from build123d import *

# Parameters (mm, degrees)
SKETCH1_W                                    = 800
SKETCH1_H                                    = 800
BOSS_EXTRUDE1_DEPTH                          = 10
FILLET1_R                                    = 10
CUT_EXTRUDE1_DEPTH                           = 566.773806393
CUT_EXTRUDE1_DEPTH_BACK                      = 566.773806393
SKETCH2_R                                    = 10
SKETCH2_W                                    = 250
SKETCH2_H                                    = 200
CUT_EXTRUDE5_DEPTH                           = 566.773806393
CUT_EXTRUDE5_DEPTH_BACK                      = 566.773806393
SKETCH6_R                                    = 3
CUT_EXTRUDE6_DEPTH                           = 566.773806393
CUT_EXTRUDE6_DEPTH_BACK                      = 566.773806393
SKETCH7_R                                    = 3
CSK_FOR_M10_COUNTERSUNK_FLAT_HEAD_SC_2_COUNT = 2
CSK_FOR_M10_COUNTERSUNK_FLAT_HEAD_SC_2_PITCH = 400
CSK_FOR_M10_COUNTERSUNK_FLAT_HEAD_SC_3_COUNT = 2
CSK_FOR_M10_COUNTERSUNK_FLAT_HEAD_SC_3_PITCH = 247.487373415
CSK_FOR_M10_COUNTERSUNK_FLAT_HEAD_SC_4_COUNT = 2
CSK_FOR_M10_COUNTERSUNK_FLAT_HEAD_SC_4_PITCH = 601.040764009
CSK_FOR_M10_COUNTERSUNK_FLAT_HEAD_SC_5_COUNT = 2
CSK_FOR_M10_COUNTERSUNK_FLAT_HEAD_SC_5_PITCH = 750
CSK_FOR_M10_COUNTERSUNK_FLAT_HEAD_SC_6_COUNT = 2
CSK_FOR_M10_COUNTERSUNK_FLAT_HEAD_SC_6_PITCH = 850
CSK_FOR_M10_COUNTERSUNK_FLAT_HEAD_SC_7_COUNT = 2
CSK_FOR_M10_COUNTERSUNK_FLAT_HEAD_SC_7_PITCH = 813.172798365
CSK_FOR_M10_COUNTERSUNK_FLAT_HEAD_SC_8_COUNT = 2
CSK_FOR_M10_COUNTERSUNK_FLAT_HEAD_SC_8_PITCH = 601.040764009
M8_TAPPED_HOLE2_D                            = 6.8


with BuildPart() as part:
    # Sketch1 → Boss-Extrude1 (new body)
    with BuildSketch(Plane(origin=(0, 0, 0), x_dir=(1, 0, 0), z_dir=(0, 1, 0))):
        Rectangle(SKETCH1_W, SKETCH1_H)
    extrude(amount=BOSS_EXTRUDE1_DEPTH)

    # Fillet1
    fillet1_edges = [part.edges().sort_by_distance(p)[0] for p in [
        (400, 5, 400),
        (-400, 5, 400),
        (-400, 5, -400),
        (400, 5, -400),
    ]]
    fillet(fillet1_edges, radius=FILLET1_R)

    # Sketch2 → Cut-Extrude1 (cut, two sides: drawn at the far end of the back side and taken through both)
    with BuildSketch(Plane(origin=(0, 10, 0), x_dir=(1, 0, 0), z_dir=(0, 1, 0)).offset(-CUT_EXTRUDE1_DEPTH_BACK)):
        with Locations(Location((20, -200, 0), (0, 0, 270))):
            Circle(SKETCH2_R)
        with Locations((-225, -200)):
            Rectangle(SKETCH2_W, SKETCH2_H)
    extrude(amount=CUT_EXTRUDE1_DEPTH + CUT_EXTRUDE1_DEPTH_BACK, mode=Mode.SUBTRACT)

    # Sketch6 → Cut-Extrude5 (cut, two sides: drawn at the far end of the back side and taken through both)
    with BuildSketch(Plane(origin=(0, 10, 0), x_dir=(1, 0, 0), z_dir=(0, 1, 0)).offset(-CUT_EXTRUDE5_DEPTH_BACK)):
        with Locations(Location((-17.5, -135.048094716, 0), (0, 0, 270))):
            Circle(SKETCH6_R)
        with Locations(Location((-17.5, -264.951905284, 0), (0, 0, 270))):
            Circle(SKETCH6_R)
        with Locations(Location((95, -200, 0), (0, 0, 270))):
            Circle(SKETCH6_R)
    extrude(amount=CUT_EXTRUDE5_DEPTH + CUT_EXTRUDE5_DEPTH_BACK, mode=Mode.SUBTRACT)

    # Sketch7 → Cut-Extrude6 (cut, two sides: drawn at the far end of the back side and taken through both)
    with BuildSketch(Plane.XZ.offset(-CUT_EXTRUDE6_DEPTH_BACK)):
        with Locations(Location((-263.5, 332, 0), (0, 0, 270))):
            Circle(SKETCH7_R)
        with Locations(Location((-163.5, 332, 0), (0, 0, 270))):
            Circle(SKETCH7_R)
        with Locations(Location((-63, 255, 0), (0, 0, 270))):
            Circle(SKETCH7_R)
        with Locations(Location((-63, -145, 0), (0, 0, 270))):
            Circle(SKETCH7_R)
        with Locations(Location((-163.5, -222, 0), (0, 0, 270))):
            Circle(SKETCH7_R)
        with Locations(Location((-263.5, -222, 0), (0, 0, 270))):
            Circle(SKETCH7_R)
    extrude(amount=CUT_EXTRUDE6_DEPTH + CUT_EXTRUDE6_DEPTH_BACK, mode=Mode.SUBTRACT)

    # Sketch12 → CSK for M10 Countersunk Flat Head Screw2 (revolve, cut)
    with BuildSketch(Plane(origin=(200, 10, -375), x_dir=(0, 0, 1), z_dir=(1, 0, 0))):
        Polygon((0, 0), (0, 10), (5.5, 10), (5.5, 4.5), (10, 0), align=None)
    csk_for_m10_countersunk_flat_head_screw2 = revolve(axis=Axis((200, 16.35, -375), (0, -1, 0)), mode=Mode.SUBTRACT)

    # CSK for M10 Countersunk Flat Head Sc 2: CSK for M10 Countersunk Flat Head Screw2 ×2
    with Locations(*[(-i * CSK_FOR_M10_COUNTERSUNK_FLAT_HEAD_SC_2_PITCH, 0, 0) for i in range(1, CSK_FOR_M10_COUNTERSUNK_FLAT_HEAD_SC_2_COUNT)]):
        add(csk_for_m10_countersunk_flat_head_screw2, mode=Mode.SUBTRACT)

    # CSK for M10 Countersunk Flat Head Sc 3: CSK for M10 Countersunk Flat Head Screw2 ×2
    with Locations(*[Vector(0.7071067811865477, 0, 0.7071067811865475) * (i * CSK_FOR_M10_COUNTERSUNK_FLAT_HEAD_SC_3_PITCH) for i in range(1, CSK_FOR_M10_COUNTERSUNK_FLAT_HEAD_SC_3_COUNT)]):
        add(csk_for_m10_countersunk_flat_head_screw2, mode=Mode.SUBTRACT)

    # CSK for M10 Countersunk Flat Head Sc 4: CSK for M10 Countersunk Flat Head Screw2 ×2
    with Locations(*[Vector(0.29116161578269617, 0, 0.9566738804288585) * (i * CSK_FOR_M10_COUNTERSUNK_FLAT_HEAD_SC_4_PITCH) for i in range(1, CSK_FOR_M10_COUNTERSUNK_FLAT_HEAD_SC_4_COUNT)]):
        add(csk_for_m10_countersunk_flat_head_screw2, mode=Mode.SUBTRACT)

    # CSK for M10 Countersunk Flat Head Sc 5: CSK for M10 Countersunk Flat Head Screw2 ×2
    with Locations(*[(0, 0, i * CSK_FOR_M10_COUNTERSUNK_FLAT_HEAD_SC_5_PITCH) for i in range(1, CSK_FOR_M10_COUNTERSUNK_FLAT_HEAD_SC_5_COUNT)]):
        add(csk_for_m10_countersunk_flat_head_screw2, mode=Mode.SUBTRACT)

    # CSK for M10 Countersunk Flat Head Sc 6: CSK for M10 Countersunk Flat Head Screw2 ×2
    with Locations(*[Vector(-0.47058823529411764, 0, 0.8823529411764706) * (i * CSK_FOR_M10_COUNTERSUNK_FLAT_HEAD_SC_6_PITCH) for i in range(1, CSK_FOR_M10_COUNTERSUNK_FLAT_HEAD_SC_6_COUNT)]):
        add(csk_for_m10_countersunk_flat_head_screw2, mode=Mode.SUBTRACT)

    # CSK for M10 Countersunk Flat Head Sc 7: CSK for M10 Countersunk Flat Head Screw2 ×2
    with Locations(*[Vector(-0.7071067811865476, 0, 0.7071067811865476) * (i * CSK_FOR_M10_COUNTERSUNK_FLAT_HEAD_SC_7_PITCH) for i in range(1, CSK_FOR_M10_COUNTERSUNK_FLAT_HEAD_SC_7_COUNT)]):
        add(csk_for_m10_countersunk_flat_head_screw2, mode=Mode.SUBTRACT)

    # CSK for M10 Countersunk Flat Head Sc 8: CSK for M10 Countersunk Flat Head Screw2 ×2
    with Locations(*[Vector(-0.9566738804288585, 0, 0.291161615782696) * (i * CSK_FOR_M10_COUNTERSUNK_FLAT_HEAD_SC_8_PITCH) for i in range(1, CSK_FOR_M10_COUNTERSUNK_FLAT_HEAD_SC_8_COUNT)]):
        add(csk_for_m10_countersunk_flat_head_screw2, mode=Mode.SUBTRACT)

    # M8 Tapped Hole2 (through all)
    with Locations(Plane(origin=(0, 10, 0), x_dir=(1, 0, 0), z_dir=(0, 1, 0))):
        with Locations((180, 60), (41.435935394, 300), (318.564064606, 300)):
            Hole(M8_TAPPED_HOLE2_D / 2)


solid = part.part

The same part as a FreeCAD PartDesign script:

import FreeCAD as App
import Part
import Sketcher
from FreeCAD import Vector


def edges_at(feature, points):
    """Names of the edges that pass closest to the given points."""
    edges = feature.Shape.Edges
    near = lambda p: min(range(len(edges)), key=lambda i: edges[i].distToShape(Part.Vertex(*p))[0])
    return sorted({f"Edge{near(p) + 1}" for p in points})


def add_polygon(sketch, points):
    """Adds a closed chain of lines whose ends are joined by coincident constraints."""
    first, n = sketch.GeometryCount, len(points)
    for a, b in zip(points, points[1:] + points[:1]):
        sketch.addGeometry(Part.LineSegment(App.Vector(*a, 0), App.Vector(*b, 0)), False)
    for i in range(n):
        sketch.addConstraint(Sketcher.Constraint("Coincident", first + i, 2, first + (i + 1) % n, 1))

doc = App.newDocument("Part")
body = doc.addObject("PartDesign::Body", "Body")

# Sketch on XZ plane
sketch1 = doc.addObject("Sketcher::SketchObject", "Sketch")
body.addObject(sketch1)
sketch1.AttachmentSupport = (doc.XZ_Plane, [""])
sketch1.MapMode = "FlatFace"
add_polygon(sketch1, [(-400, -400), (-400, 400), (400, 400), (400, -400)])  # lines 0-3
sketch1.addConstraint(Sketcher.Constraint("Vertical", 0))
sketch1.addConstraint(Sketcher.Constraint("Horizontal", 1))
sketch1.addConstraint(Sketcher.Constraint("Vertical", 2))
sketch1.addConstraint(Sketcher.Constraint("Horizontal", 3))
sketch1.addConstraint(Sketcher.Constraint("Symmetric", 0, 2, 2, 2, -1, 1))
sketch1.addConstraint(Sketcher.Constraint("Equal", 3, 0))
sketch1.addConstraint(Sketcher.Constraint("DistanceX", 1, 1, 1, 2, 800.0))
pad1 = doc.addObject("PartDesign::Pad", "Pad")
body.addObject(pad1)
pad1.Profile = sketch1
pad1.Length = 10
pad1.Reversed = True
doc.recompute()

fillet = doc.addObject("PartDesign::Fillet", "Fillet")
body.addObject(fillet)
fillet.Base = (pad1, edges_at(pad1, [
    (400, 5, 400),
    (-400, 5, 400),
    (-400, 5, -400),
    (400, 5, -400),
]))
fillet.Radius = 10

# Sketch on XZ plane
sketch2 = doc.addObject("Sketcher::SketchObject", "Sketch001")
body.addObject(sketch2)
sketch2.AttachmentSupport = (doc.XZ_Plane, [""])
sketch2.MapMode = "FlatFace"
sketch2.AttachmentOffset = App.Placement(Vector(0, 0, -10), App.Rotation())
sketch2.addGeometry(Part.Circle(Vector(20, 200, 0), Vector(0, 0, 1), 10), False)  # 0
add_polygon(sketch2, [(-350, 100), (-350, 300), (-100, 300), (-100, 100)])  # lines 1-4
sketch2.addConstraint(Sketcher.Constraint("Vertical", 1))
sketch2.addConstraint(Sketcher.Constraint("Horizontal", 2))
sketch2.addConstraint(Sketcher.Constraint("Vertical", 3))
sketch2.addConstraint(Sketcher.Constraint("Horizontal", 4))
sketch2.addConstraint(Sketcher.Constraint("Diameter", 0, 20.0))
sketch2.addConstraint(Sketcher.Constraint("DistanceX", 2, 1, 2, 2, 250.0))
sketch2.addConstraint(Sketcher.Constraint("DistanceY", 1, 1, 1, 2, 200.0))
sketch2.addConstraint(Sketcher.Constraint("DistanceX", -1, 1, 0, 3, 20.0))
sketch2.addConstraint(Sketcher.Constraint("DistanceY", -1, 1, 0, 3, 200.0))
sketch2.addConstraint(Sketcher.Constraint("DistanceX", 1, 2, -1, 1, 350.0))
sketch2.addConstraint(Sketcher.Constraint("DistanceY", -1, 1, 1, 2, 300.0))
pocket1 = doc.addObject("PartDesign::Pocket", "Pocket")
body.addObject(pocket1)
pocket1.Profile = sketch2
pocket1.Type = "ThroughAll"
pocket1.Midplane = True

# Sketch on XZ plane
sketch3 = doc.addObject("Sketcher::SketchObject", "Sketch002")
body.addObject(sketch3)
sketch3.AttachmentSupport = (doc.XZ_Plane, [""])
sketch3.MapMode = "FlatFace"
sketch3.AttachmentOffset = App.Placement(Vector(0, 0, -10), App.Rotation())
sketch3.addGeometry(Part.Circle(Vector(-17.5, 135.048095, 0), Vector(0, 0, 1), 3), False)
sketch3.addGeometry(Part.Circle(Vector(-17.5, 264.951905, 0), Vector(0, 0, 1), 3), False)
sketch3.addGeometry(Part.Circle(Vector(95, 200, 0), Vector(0, 0, 1), 3), False)
sketch3.addConstraint(Sketcher.Constraint("Equal", 0, 1))
sketch3.addConstraint(Sketcher.Constraint("Equal", 1, 2))
sketch3.addConstraint(Sketcher.Constraint("Vertical", 0, 3, 1, 3))
sketch3.addConstraint(Sketcher.Constraint("Diameter", 0, 6.0))
sketch3.addConstraint(Sketcher.Constraint("DistanceX", -1, 1, 2, 3, 95.0))
sketch3.addConstraint(Sketcher.Constraint("DistanceY", -1, 1, 2, 3, 200.0))
sketch3.addConstraint(Sketcher.Constraint("DistanceX", 0, 3, -1, 1, 17.5))
sketch3.addConstraint(Sketcher.Constraint("DistanceY", 0, 3, 1, 3, 129.903811))
sketch3.addConstraint(Sketcher.Constraint("DistanceY", -1, 1, 0, 3, 135.048095))
pocket2 = doc.addObject("PartDesign::Pocket", "Pocket001")
body.addObject(pocket2)
pocket2.Profile = sketch3
pocket2.Type = "ThroughAll"
pocket2.Midplane = True

# Sketch on XZ plane
sketch4 = doc.addObject("Sketcher::SketchObject", "Sketch003")
body.addObject(sketch4)
sketch4.AttachmentSupport = (doc.XZ_Plane, [""])
sketch4.MapMode = "FlatFace"
sketch4.addGeometry(Part.Circle(Vector(-263.5, 332, 0), Vector(0, 0, 1), 3), False)
sketch4.addGeometry(Part.Circle(Vector(-163.5, 332, 0), Vector(0, 0, 1), 3), False)
sketch4.addGeometry(Part.Circle(Vector(-63, 255, 0), Vector(0, 0, 1), 3), False)
sketch4.addGeometry(Part.Circle(Vector(-63, -145, 0), Vector(0, 0, 1), 3), False)
sketch4.addGeometry(Part.Circle(Vector(-163.5, -222, 0), Vector(0, 0, 1), 3), False)
sketch4.addGeometry(Part.Circle(Vector(-263.5, -222, 0), Vector(0, 0, 1), 3), False)
sketch4.addConstraint(Sketcher.Constraint("Equal", 0, 1))
sketch4.addConstraint(Sketcher.Constraint("Equal", 1, 2))
sketch4.addConstraint(Sketcher.Constraint("Equal", 2, 3))
sketch4.addConstraint(Sketcher.Constraint("Equal", 3, 4))
sketch4.addConstraint(Sketcher.Constraint("Equal", 4, 5))
sketch4.addConstraint(Sketcher.Constraint("Horizontal", 0, 3, 1, 3))
sketch4.addConstraint(Sketcher.Constraint("Horizontal", 4, 3, 5, 3))
sketch4.addConstraint(Sketcher.Constraint("Vertical", 2, 3, 3, 3))
sketch4.addConstraint(Sketcher.Constraint("Vertical", 1, 3, 4, 3))
sketch4.addConstraint(Sketcher.Constraint("Vertical", 0, 3, 5, 3))
sketch4.addConstraint(Sketcher.Constraint("Diameter", 0, 6.0))
sketch4.addConstraint(Sketcher.Constraint("DistanceY", -1, 1, 0, 3, 332.0))
sketch4.addConstraint(Sketcher.Constraint("DistanceX", 2, 3, -1, 1, 63.0))
sketch4.addConstraint(Sketcher.Constraint("DistanceY", -1, 1, 2, 3, 255.0))
sketch4.addConstraint(Sketcher.Constraint("DistanceY", 3, 3, -1, 1, 145.0))
sketch4.addConstraint(Sketcher.Constraint("DistanceY", 4, 3, -1, 1, 222.0))
sketch4.addConstraint(Sketcher.Constraint("DistanceX", 0, 3, 1, 3, 100.0))
sketch4.addConstraint(Sketcher.Constraint("DistanceX", 0, 3, -1, 1, 263.5))
pocket3 = doc.addObject("PartDesign::Pocket", "Pocket002")
body.addObject(pocket3)
pocket3.Profile = sketch4
pocket3.Type = "ThroughAll"
pocket3.Midplane = True

# Sketch on YZ plane
sketch5 = doc.addObject("Sketcher::SketchObject", "Sketch004")
body.addObject(sketch5)
sketch5.AttachmentSupport = (doc.YZ_Plane, [""])
sketch5.MapMode = "FlatFace"
sketch5.AttachmentOffset = App.Placement(Vector(0, 0, 200), App.Rotation())
add_polygon(sketch5, [(0, -375), (10, -375), (10, -365), (5.5, -369.5), (0, -369.5)])  # lines 0-4
sketch5.addGeometry(Part.LineSegment(Vector(10, -375, 0), Vector(0, -375, 0)), True)  # axis
sketch5.addConstraint(Sketcher.Constraint("Horizontal", 0))
sketch5.addConstraint(Sketcher.Constraint("Vertical", 1))
sketch5.addConstraint(Sketcher.Constraint("Horizontal", 3))
sketch5.addConstraint(Sketcher.Constraint("Vertical", 4))
sketch5.addConstraint(Sketcher.Constraint("Horizontal", 5))
sketch5.addConstraint(Sketcher.Constraint("Coincident", 5, 1, 0, 2))
sketch5.addConstraint(Sketcher.Constraint("PointOnObject", 3, 2, -2))
sketch5.addConstraint(Sketcher.Constraint("PointOnObject", 5, 2, -2))
sketch5.addConstraint(Sketcher.Constraint("Equal", 5, 1))
sketch5.addConstraint(Sketcher.Constraint("Equal", 3, 4))
sketch5.addConstraint(Sketcher.Constraint("DistanceX", 0, 1, 0, 2, 10.0))
sketch5.addConstraint(Sketcher.Constraint("DistanceX", 3, 2, 3, 1, 5.5))
sketch5.addConstraint(Sketcher.Constraint("DistanceY", 0, 2, -1, 1, 375.0))
groove = doc.addObject("PartDesign::Groove", "Groove")
body.addObject(groove)
groove.Profile = sketch5
groove.ReferenceAxis = (sketch5, ["Axis0"])
groove.Angle = 360
doc.recompute()

linearpattern = doc.addObject("PartDesign::LinearPattern", "LinearPattern")
body.addObject(linearpattern)
linearpattern.Originals = [groove]
linearpattern.Direction = (doc.X_Axis, [""])
linearpattern.Mode = "offset"
linearpattern.Offset = 400
linearpattern.Occurrences = 2
linearpattern.Reversed = True
body.Tip = linearpattern
doc.recompute()

datumline = doc.addObject("PartDesign::Line", "DatumLine")
body.addObject(datumline)
datumline.Placement = App.Placement(Vector(0, 0, 0), App.Rotation(Vector(0, 0, 1), Vector(0.707106781, 0, 0.707106781)))
linearpattern2 = doc.addObject("PartDesign::LinearPattern", "LinearPattern001")
body.addObject(linearpattern2)
linearpattern2.Originals = [groove]
linearpattern2.Direction = (datumline, [""])
linearpattern2.Mode = "offset"
linearpattern2.Offset = 247.487373
linearpattern2.Occurrences = 2
body.Tip = linearpattern2
doc.recompute()

datumline2 = doc.addObject("PartDesign::Line", "DatumLine001")
body.addObject(datumline2)
datumline2.Placement = App.Placement(Vector(0, 0, 0), App.Rotation(Vector(0, 0, 1), Vector(0.291161616, 0, 0.95667388)))
linearpattern3 = doc.addObject("PartDesign::LinearPattern", "LinearPattern002")
body.addObject(linearpattern3)
linearpattern3.Originals = [groove]
linearpattern3.Direction = (datumline2, [""])
linearpattern3.Mode = "offset"
linearpattern3.Offset = 601.040764
linearpattern3.Occurrences = 2
body.Tip = linearpattern3
doc.recompute()

linearpattern4 = doc.addObject("PartDesign::LinearPattern", "LinearPattern003")
body.addObject(linearpattern4)
linearpattern4.Originals = [groove]
linearpattern4.Direction = (doc.Z_Axis, [""])
linearpattern4.Mode = "offset"
linearpattern4.Offset = 750
linearpattern4.Occurrences = 2
body.Tip = linearpattern4
doc.recompute()

datumline3 = doc.addObject("PartDesign::Line", "DatumLine002")
body.addObject(datumline3)
datumline3.Placement = App.Placement(Vector(0, 0, 0), App.Rotation(Vector(0, 0, 1), Vector(-0.470588235, 0, 0.882352941)))
linearpattern5 = doc.addObject("PartDesign::LinearPattern", "LinearPattern004")
body.addObject(linearpattern5)
linearpattern5.Originals = [groove]
linearpattern5.Direction = (datumline3, [""])
linearpattern5.Mode = "offset"
linearpattern5.Offset = 850
linearpattern5.Occurrences = 2
body.Tip = linearpattern5
doc.recompute()

datumline4 = doc.addObject("PartDesign::Line", "DatumLine003")
body.addObject(datumline4)
datumline4.Placement = App.Placement(Vector(0, 0, 0), App.Rotation(Vector(0, 0, 1), Vector(-0.707106781, 0, 0.707106781)))
linearpattern6 = doc.addObject("PartDesign::LinearPattern", "LinearPattern005")
body.addObject(linearpattern6)
linearpattern6.Originals = [groove]
linearpattern6.Direction = (datumline4, [""])
linearpattern6.Mode = "offset"
linearpattern6.Offset = 813.172798
linearpattern6.Occurrences = 2
body.Tip = linearpattern6
doc.recompute()

datumline5 = doc.addObject("PartDesign::Line", "DatumLine004")
body.addObject(datumline5)
datumline5.Placement = App.Placement(Vector(0, 0, 0), App.Rotation(Vector(0, 0, 1), Vector(-0.95667388, 0, 0.291161616)))
linearpattern7 = doc.addObject("PartDesign::LinearPattern", "LinearPattern006")
body.addObject(linearpattern7)
linearpattern7.Originals = [groove]
linearpattern7.Direction = (datumline5, [""])
linearpattern7.Mode = "offset"
linearpattern7.Offset = 601.040764
linearpattern7.Occurrences = 2
body.Tip = linearpattern7

# Sketch on XZ plane
sketch6 = doc.addObject("Sketcher::SketchObject", "Sketch005")
body.addObject(sketch6)
sketch6.AttachmentSupport = (doc.XZ_Plane, [""])
sketch6.MapMode = "FlatFace"
sketch6.AttachmentOffset = App.Placement(Vector(0, 0, -10), App.Rotation())
sketch6.addGeometry(Part.Circle(Vector(180, -60, 0), Vector(0, 0, 1), 3.4), False)
sketch6.addGeometry(Part.Circle(Vector(41.435935, -300, 0), Vector(0, 0, 1), 3.4), False)
sketch6.addGeometry(Part.Circle(Vector(318.564065, -300, 0), Vector(0, 0, 1), 3.4), False)
sketch6.addConstraint(Sketcher.Constraint("Equal", 0, 1))
sketch6.addConstraint(Sketcher.Constraint("Equal", 1, 2))
sketch6.addConstraint(Sketcher.Constraint("Horizontal", 1, 3, 2, 3))
sketch6.addConstraint(Sketcher.Constraint("Diameter", 0, 6.8))
sketch6.addConstraint(Sketcher.Constraint("DistanceX", -1, 1, 0, 3, 180.0))
sketch6.addConstraint(Sketcher.Constraint("DistanceY", 0, 3, -1, 1, 60.0))
sketch6.addConstraint(Sketcher.Constraint("DistanceY", 1, 3, -1, 1, 300.0))
sketch6.addConstraint(Sketcher.Constraint("DistanceX", 1, 3, 2, 3, 277.128129))
sketch6.addConstraint(Sketcher.Constraint("DistanceX", -1, 1, 1, 3, 41.435935))
doc.recompute()
hole = doc.addObject("PartDesign::Hole", "Hole")
body.addObject(hole)
hole.Profile = sketch6
hole.ThreadType = "None"
hole.Diameter = 6.8
hole.DepthType = "ThroughAll"
hole.Reversed = True

doc.recompute()
